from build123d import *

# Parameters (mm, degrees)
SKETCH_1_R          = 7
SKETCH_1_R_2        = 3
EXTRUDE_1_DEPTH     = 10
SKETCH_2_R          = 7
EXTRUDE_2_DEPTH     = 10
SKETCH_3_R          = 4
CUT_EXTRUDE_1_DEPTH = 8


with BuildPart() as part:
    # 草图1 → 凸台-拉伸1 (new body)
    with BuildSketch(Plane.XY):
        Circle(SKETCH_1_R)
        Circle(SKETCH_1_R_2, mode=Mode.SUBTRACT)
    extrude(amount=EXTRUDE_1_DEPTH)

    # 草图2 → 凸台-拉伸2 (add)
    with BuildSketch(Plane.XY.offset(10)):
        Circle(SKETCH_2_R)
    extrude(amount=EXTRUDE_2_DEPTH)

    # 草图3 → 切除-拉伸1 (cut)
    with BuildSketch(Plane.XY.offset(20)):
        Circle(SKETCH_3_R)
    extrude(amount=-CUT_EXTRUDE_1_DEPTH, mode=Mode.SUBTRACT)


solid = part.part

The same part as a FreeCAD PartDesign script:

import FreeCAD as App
import Part
import Sketcher

V = App.Vector
Q = App.Units.Quantity

doc = App.newDocument("Part")
body = doc.addObject("PartDesign::Body", "Body")

# Sketch on XY plane
sketch1 = doc.addObject("Sketcher::SketchObject", "Sketch")
body.addObject(sketch1)
sketch1.AttachmentSupport = (doc.XY_Plane, [""])
sketch1.MapMode = "FlatFace"
sketch1.addGeometry([
    Part.Circle(V(0, 0, 0), V(0, 0, 1), 7),
    Part.Circle(V(0, 0, 0), V(0, 0, 1), 3),
], False)
sketch1.addConstraint([
    Sketcher.Constraint("Coincident", 0, 3, -1, 1),
    Sketcher.Constraint("Coincident", 1, 3, -1, 1),
    Sketcher.Constraint("Diameter", 0, Q("14 mm")),
    Sketcher.Constraint("Diameter", 1, Q("6 mm")),
])
pad1 = doc.addObject("PartDesign::Pad", "Pad")
body.addObject(pad1)
pad1.Profile = sketch1
pad1.Length = 10

# Sketch on XY plane
sketch2 = doc.addObject("Sketcher::SketchObject", "Sketch001")
body.addObject(sketch2)
sketch2.AttachmentSupport = (doc.XY_Plane, [""])
sketch2.MapMode = "FlatFace"
sketch2.AttachmentOffset = App.Placement(V(0, 0, 10), App.Rotation())
sketch2.addGeometry(Part.Circle(V(0, 0, 0), V(0, 0, 1), 7), False)
sketch2.addConstraint([
    Sketcher.Constraint("Coincident", 0, 3, -1, 1),
    Sketcher.Constraint("Diameter", 0, Q("14 mm")),
])
pad2 = doc.addObject("PartDesign::Pad", "Pad001")
body.addObject(pad2)
pad2.Profile = sketch2
pad2.Length = 10

# Sketch on XY plane
sketch3 = doc.addObject("Sketcher::SketchObject", "Sketch002")
body.addObject(sketch3)
sketch3.AttachmentSupport = (doc.XY_Plane, [""])
sketch3.MapMode = "FlatFace"
sketch3.AttachmentOffset = App.Placement(V(0, 0, 20), App.Rotation())
sketch3.addGeometry(Part.Circle(V(0, 0, 0), V(0, 0, 1), 4), False)
sketch3.addConstraint([
    Sketcher.Constraint("Coincident", 0, 3, -1, 1),
    Sketcher.Constraint("Diameter", 0, Q("8 mm")),
])
pocket1 = doc.addObject("PartDesign::Pocket", "Pocket")
body.addObject(pocket1)
pocket1.Profile = sketch3
pocket1.Length = 8

doc.recompute()
